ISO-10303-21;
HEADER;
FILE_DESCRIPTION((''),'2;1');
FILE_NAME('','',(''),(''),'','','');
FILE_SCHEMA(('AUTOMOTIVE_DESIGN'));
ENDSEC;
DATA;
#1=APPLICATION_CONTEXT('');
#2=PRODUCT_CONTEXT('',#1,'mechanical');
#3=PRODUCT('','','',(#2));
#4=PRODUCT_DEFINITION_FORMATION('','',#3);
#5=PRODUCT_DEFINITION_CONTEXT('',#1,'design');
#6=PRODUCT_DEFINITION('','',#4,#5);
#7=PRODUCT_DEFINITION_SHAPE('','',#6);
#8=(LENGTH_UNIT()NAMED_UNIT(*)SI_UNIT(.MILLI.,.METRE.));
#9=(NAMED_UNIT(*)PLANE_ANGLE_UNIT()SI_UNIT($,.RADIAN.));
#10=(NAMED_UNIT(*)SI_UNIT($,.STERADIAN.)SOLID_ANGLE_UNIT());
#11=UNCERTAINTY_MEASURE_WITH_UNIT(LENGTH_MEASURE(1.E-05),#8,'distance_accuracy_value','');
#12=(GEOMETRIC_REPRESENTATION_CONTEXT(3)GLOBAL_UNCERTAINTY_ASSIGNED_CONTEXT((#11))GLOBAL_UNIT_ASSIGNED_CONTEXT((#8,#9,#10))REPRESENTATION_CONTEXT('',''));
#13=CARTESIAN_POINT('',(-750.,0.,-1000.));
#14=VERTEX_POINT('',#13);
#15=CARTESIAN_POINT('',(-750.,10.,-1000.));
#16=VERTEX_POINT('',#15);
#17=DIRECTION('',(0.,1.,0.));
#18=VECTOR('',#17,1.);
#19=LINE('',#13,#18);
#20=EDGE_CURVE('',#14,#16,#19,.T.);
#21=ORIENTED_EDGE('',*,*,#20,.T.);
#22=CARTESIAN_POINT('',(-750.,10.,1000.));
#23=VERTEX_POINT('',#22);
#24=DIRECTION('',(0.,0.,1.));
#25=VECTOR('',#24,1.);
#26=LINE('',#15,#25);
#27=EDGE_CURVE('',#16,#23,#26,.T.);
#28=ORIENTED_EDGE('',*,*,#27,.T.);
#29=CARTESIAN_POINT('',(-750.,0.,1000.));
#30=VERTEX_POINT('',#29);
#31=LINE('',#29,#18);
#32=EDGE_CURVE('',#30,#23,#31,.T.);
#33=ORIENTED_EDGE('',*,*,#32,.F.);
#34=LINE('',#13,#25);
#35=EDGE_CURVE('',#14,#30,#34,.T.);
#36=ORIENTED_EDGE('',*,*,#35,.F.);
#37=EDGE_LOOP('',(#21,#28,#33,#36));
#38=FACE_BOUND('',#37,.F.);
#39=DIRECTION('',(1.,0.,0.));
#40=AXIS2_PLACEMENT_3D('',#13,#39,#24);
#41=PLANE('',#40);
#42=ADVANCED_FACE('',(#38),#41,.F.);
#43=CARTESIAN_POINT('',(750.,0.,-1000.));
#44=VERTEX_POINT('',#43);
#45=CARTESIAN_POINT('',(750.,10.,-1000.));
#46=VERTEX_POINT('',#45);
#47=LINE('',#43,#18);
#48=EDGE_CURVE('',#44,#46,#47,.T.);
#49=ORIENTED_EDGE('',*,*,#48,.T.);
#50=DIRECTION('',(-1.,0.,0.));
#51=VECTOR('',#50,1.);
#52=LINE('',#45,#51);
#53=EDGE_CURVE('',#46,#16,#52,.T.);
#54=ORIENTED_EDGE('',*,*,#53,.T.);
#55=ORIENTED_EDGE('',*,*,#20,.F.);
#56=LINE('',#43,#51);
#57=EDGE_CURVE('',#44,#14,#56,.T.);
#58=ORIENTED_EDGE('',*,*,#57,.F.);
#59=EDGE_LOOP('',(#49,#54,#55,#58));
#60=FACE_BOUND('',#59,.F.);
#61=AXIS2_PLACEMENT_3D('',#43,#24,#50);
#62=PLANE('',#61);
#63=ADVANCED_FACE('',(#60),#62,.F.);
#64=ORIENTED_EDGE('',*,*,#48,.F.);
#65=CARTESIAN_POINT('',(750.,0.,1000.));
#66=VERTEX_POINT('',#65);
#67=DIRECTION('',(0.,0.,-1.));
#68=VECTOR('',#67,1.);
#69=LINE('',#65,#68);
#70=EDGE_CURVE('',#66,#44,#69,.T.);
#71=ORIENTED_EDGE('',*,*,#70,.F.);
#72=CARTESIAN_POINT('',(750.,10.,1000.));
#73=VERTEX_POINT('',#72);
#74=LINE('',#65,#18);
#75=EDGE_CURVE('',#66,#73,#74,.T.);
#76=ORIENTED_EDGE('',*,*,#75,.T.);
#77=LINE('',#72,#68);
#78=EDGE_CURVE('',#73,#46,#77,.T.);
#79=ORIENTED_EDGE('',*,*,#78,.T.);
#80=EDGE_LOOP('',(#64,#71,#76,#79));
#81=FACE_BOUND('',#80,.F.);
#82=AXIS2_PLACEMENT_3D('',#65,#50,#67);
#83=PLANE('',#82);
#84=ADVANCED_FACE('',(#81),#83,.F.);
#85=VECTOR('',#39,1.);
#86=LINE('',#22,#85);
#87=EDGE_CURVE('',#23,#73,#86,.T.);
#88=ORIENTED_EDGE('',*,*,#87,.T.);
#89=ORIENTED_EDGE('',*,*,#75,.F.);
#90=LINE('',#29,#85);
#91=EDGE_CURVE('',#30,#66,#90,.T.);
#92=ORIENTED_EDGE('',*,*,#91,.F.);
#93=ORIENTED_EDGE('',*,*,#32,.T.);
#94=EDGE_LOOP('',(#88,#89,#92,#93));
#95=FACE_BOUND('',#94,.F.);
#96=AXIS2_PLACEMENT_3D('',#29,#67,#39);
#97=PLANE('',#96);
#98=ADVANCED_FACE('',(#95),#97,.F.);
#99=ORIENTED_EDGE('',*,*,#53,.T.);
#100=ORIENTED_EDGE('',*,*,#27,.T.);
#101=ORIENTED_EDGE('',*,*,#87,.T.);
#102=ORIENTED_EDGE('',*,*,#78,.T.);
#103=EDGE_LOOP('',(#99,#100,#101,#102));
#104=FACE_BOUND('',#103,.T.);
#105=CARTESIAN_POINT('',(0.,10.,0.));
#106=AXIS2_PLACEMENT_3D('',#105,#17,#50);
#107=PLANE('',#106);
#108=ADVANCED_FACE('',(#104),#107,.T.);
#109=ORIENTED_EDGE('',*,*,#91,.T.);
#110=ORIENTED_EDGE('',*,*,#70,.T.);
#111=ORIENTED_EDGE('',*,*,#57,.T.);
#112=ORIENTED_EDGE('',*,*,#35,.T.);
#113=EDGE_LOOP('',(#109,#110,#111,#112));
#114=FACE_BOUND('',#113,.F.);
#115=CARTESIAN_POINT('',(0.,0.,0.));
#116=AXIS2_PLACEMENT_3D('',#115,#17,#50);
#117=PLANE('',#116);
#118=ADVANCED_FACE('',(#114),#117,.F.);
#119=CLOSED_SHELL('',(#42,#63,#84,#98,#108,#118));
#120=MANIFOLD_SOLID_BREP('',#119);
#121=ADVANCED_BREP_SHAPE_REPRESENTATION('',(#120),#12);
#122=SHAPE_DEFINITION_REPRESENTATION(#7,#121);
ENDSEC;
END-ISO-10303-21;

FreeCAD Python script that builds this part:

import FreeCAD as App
import Part
import Sketcher
from FreeCAD import Vector
Q = App.Units.Quantity

doc = App.newDocument("Part")
body = doc.addObject("PartDesign::Body", "Body")

# Sketch on XZ plane
sketch1 = doc.addObject("Sketcher::SketchObject", "Sketch")
body.addObject(sketch1)
sketch1.AttachmentSupport = (doc.XZ_Plane, [""])
sketch1.MapMode = "FlatFace"
sketch1.addGeometry([
    Part.LineSegment(Vector(750, 1000, 0), Vector(750, -1000, 0)),
    Part.LineSegment(Vector(750, -1000, 0), Vector(-750, -1000, 0)),
    Part.LineSegment(Vector(-750, -1000, 0), Vector(-750, 1000, 0)),
    Part.LineSegment(Vector(-750, 1000, 0), Vector(750, 1000, 0)),
], False)
sketch1.addConstraint([
    Sketcher.Constraint("Coincident", 0, 2, 1, 1),
    Sketcher.Constraint("Coincident", 1, 2, 2, 1),
    Sketcher.Constraint("Coincident", 2, 2, 3, 1),
    Sketcher.Constraint("Coincident", 3, 2, 0, 1),
    Sketcher.Constraint("Vertical", 0),
    Sketcher.Constraint("Horizontal", 1),
    Sketcher.Constraint("Vertical", 2),
    Sketcher.Constraint("Horizontal", 3),
    Sketcher.Constraint("Symmetric", 0, 2, 2, 2, -1, 1),
    Sketcher.Constraint("DistanceX", 1, 2, 1, 1, Q("1500 mm")),
    Sketcher.Constraint("DistanceY", 0, 2, 0, 1, Q("2000 mm")),
])
pad1 = doc.addObject("PartDesign::Pad", "Pad")
body.addObject(pad1)
pad1.Profile = sketch1
pad1.Length = 10
pad1.Reversed = True

doc.recompute()
